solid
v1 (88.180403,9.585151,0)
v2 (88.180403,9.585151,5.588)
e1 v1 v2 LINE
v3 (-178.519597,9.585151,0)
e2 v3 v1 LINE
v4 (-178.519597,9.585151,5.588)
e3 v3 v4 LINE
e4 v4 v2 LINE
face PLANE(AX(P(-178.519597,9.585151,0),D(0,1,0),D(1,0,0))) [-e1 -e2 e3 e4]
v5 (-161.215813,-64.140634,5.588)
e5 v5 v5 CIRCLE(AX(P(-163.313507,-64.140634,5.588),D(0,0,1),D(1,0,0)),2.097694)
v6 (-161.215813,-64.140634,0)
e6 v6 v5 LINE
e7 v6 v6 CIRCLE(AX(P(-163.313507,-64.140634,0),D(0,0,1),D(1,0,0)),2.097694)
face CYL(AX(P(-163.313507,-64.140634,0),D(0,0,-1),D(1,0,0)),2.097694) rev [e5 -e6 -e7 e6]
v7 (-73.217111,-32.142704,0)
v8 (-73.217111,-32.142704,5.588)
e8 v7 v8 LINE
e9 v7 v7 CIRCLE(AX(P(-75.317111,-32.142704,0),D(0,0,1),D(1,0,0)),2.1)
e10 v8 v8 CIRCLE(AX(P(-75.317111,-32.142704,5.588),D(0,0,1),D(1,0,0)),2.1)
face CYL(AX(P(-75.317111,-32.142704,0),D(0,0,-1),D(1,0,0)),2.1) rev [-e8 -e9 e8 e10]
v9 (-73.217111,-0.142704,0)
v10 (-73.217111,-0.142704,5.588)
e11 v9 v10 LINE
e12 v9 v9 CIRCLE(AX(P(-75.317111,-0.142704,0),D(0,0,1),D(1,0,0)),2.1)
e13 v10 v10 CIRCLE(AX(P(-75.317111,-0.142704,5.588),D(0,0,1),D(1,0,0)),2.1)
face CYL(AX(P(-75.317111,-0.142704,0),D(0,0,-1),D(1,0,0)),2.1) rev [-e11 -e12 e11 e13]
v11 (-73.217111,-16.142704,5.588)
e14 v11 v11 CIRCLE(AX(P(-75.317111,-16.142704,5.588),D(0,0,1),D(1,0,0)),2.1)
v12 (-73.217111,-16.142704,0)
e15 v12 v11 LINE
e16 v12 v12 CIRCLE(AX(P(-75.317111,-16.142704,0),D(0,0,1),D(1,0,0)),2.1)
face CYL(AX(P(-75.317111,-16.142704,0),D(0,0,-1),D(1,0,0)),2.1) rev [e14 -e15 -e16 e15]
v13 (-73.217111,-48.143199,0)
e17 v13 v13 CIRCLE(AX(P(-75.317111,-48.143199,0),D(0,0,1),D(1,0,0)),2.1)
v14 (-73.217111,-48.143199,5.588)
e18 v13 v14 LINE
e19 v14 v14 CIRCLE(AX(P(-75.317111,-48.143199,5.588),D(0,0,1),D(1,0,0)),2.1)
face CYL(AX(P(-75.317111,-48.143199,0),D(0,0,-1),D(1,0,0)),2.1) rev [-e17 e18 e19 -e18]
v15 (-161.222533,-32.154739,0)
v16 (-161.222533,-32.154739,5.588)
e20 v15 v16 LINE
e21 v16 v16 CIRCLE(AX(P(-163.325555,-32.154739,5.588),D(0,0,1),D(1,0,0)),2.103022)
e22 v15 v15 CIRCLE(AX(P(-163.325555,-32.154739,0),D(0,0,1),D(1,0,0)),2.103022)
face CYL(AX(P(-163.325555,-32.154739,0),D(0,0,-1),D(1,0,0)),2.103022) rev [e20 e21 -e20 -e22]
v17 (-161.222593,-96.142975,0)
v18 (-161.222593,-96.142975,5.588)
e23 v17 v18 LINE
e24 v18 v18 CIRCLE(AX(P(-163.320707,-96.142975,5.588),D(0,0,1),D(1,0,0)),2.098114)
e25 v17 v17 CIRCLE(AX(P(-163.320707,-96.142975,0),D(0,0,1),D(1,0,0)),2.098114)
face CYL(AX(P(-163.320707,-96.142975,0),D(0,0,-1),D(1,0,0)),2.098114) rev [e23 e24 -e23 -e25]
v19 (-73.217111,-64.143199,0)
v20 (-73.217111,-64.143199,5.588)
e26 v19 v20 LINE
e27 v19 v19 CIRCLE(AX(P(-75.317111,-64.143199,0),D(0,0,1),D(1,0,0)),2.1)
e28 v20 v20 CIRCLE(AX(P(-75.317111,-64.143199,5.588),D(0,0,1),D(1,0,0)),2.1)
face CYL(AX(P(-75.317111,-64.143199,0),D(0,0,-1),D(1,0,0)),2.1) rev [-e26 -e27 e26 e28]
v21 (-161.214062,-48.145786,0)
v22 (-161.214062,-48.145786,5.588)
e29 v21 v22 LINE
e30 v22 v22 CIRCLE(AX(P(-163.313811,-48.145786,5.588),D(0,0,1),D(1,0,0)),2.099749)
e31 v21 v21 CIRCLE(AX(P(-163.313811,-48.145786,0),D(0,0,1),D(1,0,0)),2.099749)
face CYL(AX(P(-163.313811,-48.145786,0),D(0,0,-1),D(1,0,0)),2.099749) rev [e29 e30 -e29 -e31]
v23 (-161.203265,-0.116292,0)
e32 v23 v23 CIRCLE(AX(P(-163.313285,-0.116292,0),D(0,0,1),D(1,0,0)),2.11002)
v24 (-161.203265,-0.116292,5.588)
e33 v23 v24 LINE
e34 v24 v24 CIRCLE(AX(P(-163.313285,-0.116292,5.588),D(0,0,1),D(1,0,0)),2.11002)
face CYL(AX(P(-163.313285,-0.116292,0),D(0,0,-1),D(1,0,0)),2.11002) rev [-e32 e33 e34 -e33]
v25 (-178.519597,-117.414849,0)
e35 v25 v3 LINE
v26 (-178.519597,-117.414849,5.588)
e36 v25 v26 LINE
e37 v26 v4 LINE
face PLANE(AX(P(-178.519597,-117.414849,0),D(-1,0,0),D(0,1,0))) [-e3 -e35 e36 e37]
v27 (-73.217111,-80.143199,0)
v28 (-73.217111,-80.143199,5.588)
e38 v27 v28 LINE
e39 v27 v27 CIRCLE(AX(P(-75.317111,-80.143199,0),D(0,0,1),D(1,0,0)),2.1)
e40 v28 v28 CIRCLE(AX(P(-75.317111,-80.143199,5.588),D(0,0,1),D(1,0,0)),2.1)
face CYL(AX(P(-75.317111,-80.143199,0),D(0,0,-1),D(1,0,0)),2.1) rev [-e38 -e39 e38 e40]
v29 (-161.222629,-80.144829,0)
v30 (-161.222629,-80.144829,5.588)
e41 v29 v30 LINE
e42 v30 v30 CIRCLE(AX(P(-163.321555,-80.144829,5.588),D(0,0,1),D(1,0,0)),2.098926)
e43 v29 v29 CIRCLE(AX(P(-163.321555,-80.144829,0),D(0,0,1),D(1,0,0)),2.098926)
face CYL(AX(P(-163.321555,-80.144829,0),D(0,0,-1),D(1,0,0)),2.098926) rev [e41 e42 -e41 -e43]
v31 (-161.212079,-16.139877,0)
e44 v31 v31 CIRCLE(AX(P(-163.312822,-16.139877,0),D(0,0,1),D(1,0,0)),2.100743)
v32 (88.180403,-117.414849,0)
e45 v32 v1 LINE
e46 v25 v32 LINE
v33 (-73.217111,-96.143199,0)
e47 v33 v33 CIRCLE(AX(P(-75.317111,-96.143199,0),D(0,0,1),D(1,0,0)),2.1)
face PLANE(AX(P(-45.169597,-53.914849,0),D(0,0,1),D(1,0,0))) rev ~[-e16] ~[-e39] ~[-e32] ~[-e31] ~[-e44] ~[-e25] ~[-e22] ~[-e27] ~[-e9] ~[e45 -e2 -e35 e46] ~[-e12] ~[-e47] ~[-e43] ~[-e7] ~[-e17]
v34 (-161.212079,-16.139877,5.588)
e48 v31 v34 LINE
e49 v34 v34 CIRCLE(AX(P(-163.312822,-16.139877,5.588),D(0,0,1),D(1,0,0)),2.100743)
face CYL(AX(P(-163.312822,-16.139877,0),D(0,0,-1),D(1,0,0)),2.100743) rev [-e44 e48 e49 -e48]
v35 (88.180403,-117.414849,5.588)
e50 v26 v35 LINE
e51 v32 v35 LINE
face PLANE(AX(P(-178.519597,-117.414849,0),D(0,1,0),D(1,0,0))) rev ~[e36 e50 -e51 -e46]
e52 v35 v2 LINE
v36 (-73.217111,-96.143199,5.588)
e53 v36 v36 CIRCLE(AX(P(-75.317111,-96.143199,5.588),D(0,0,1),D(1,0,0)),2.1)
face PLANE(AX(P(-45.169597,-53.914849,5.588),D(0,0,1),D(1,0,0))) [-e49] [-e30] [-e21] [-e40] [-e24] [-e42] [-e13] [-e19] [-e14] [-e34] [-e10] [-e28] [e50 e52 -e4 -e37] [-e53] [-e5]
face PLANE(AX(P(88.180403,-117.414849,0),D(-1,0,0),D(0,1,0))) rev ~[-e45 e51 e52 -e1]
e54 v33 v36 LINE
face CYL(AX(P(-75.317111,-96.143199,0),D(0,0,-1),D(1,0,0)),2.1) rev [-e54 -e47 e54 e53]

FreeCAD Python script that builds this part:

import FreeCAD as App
import Part
import Sketcher
from FreeCAD import Vector
Q = App.Units.Quantity

doc = App.newDocument("Part")
body = doc.addObject("PartDesign::Body", "Body")

sketch1 = body.newObject("Sketcher::SketchObject", "Sketch")
sketch1.AttachmentSupport = (doc.getObject("XY_Plane"), [""])
sketch1.MapMode = "FlatFace"
sketch1.addGeometry([
    Part.LineSegment(Vector(-178.5, 9.6, 0), Vector(-178.5, -117.4, 0)),
    Part.LineSegment(Vector(-178.5, -117.4, 0), Vector(88.2, -117.4, 0)),
    Part.LineSegment(Vector(88.2, -117.4, 0), Vector(88.2, 9.6, 0)),
    Part.LineSegment(Vector(88.2, 9.6, 0), Vector(-178.5, 9.6, 0)),
    Part.Circle(Vector(-163.3, -96.1, 0), Vector(0, 0, 1), 2.1),
    Part.Circle(Vector(-163.3, -80.1, 0), Vector(0, 0, 1), 2.1),
    Part.Circle(Vector(-163.3, -64.1, 0), Vector(0, 0, 1), 2.1),
    Part.Circle(Vector(-163.3, -48.1, 0), Vector(0, 0, 1), 2.1),
    Part.Circle(Vector(-75.3, -96.1, 0), Vector(0, 0, 1), 2.1),
    Part.Circle(Vector(-75.3, -80.1, 0), Vector(0, 0, 1), 2.1),
    Part.Circle(Vector(-75.3, -64.1, 0), Vector(0, 0, 1), 2.1),
    Part.Circle(Vector(-75.3, -48.1, 0), Vector(0, 0, 1), 2.1),
    Part.Circle(Vector(-163.3, -32.2, 0), Vector(0, 0, 1), 2.1),
    Part.Circle(Vector(-163.3, -16.1, 0), Vector(0, 0, 1), 2.1),
    Part.Circle(Vector(-163.3, -0.1, 0), Vector(0, 0, 1), 2.1),
    Part.Circle(Vector(-75.3, -32.1, 0), Vector(0, 0, 1), 2.1),
    Part.Circle(Vector(-75.3, -16.1, 0), Vector(0, 0, 1), 2.1),
    Part.Circle(Vector(-75.3, -0.1, 0), Vector(0, 0, 1), 2.1),
], False)
sketch1.addConstraint([
    Sketcher.Constraint("Coincident", 0, 2, 1, 1),
    Sketcher.Constraint("Coincident", 1, 2, 2, 1),
    Sketcher.Constraint("Coincident", 2, 2, 3, 1),
    Sketcher.Constraint("Coincident", 3, 2, 0, 1),
    Sketcher.Constraint("Vertical", 0),
    Sketcher.Constraint("Horizontal", 1),
    Sketcher.Constraint("Vertical", 2),
    Sketcher.Constraint("Horizontal", 3),
    Sketcher.Constraint("Equal", 8, 9),
    Sketcher.Constraint("Equal", 9, 10),
    Sketcher.Constraint("Equal", 10, 11),
    Sketcher.Constraint("Equal", 11, 15),
    Sketcher.Constraint("Equal", 15, 16),
    Sketcher.Constraint("Equal", 16, 17),
    Sketcher.Constraint("Vertical", 8, 3, 9, 3),
    Sketcher.Constraint("Vertical", 9, 3, 10, 3),
    Sketcher.Constraint("Vertical", 10, 3, 11, 3),
    Sketcher.Constraint("Vertical", 11, 3, 15, 3),
    Sketcher.Constraint("Vertical", 15, 3, 16, 3),
    Sketcher.Constraint("Vertical", 16, 3, 17, 3),
    Sketcher.Constraint("DistanceY", 0, 2, 0, 1, Q("5 in")),
    Sketcher.Constraint("DistanceX", 1, 1, 1, 2, Q("10.5 in")),
    Sketcher.Constraint("Diameter", 7, 4.199498),
    Sketcher.Constraint("Diameter", 8, 4.2),
    Sketcher.Constraint("Diameter", 6, 4.195388),
    Sketcher.Constraint("Diameter", 14, 4.22004),
    Sketcher.Constraint("Diameter", 4, 4.196228),
    Sketcher.Constraint("Diameter", 5, 4.197852),
    Sketcher.Constraint("Diameter", 12, 4.206044),
    Sketcher.Constraint("Diameter", 13, 4.201486),
    Sketcher.Constraint("DistanceY", 8, 3, -1, 1, 96.143199),
    Sketcher.Constraint("DistanceY", 9, 3, -1, 1, 80.143199),
    Sketcher.Constraint("DistanceY", 10, 3, -1, 1, 64.143199),
    Sketcher.Constraint("DistanceY", 11, 3, -1, 1, 48.143199),
    Sketcher.Constraint("DistanceX", 4, 3, 6, 3, 0.0072),
    Sketcher.Constraint("DistanceX", 7, 3, 8, 3, 87.9967),
    Sketcher.Constraint("DistanceX", 12, 3, 5, 3, 0.004),
    Sketcher.Constraint("DistanceY", 4, 3, 13, 3, 80.003098),
    Sketcher.Constraint("DistanceY", 15, 3, 16, 3, 16.0),
    Sketcher.Constraint("DistanceY", 16, 3, 17, 3, 16.0),
    Sketcher.Constraint("DistanceY", 5, 3, -1, 1, 80.144829),
    Sketcher.Constraint("DistanceX", 7, 3, -1, 1, 163.313811),
    Sketcher.Constraint("DistanceY", 12, 3, -1, 1, 32.154739),
    Sketcher.Constraint("DistanceY", 0, 2, -1, 1, 117.414849),
    Sketcher.Constraint("DistanceX", 5, 3, 6, 3, 0.008048),
    Sketcher.Constraint("DistanceY", 4, 3, 6, 3, 32.002341),
    Sketcher.Constraint("DistanceY", 6, 3, 7, 3, 15.994848),
    Sketcher.Constraint("DistanceX", 7, 3, 13, 3, 0.000989),
    Sketcher.Constraint("DistanceX", 12, 3, 14, 3, 0.01227),
    Sketcher.Constraint("DistanceX", 0, 2, 4, 3, 15.19889),
    Sketcher.Constraint("DistanceX", 4, 3, -1, 1, 163.320707),
    Sketcher.Constraint("DistanceY", 4, 3, -1, 1, 96.142975),
    Sketcher.Constraint("DistanceY", 14, 3, -1, 1, 0.116292),
    Sketcher.Constraint("DistanceY", 15, 3, -1, 1, 32.142704),
])
pad1 = body.newObject("PartDesign::Pad", "Pad")
pad1.Profile = sketch1
pad1.Length = Q("0.22 in")

doc.recompute()
